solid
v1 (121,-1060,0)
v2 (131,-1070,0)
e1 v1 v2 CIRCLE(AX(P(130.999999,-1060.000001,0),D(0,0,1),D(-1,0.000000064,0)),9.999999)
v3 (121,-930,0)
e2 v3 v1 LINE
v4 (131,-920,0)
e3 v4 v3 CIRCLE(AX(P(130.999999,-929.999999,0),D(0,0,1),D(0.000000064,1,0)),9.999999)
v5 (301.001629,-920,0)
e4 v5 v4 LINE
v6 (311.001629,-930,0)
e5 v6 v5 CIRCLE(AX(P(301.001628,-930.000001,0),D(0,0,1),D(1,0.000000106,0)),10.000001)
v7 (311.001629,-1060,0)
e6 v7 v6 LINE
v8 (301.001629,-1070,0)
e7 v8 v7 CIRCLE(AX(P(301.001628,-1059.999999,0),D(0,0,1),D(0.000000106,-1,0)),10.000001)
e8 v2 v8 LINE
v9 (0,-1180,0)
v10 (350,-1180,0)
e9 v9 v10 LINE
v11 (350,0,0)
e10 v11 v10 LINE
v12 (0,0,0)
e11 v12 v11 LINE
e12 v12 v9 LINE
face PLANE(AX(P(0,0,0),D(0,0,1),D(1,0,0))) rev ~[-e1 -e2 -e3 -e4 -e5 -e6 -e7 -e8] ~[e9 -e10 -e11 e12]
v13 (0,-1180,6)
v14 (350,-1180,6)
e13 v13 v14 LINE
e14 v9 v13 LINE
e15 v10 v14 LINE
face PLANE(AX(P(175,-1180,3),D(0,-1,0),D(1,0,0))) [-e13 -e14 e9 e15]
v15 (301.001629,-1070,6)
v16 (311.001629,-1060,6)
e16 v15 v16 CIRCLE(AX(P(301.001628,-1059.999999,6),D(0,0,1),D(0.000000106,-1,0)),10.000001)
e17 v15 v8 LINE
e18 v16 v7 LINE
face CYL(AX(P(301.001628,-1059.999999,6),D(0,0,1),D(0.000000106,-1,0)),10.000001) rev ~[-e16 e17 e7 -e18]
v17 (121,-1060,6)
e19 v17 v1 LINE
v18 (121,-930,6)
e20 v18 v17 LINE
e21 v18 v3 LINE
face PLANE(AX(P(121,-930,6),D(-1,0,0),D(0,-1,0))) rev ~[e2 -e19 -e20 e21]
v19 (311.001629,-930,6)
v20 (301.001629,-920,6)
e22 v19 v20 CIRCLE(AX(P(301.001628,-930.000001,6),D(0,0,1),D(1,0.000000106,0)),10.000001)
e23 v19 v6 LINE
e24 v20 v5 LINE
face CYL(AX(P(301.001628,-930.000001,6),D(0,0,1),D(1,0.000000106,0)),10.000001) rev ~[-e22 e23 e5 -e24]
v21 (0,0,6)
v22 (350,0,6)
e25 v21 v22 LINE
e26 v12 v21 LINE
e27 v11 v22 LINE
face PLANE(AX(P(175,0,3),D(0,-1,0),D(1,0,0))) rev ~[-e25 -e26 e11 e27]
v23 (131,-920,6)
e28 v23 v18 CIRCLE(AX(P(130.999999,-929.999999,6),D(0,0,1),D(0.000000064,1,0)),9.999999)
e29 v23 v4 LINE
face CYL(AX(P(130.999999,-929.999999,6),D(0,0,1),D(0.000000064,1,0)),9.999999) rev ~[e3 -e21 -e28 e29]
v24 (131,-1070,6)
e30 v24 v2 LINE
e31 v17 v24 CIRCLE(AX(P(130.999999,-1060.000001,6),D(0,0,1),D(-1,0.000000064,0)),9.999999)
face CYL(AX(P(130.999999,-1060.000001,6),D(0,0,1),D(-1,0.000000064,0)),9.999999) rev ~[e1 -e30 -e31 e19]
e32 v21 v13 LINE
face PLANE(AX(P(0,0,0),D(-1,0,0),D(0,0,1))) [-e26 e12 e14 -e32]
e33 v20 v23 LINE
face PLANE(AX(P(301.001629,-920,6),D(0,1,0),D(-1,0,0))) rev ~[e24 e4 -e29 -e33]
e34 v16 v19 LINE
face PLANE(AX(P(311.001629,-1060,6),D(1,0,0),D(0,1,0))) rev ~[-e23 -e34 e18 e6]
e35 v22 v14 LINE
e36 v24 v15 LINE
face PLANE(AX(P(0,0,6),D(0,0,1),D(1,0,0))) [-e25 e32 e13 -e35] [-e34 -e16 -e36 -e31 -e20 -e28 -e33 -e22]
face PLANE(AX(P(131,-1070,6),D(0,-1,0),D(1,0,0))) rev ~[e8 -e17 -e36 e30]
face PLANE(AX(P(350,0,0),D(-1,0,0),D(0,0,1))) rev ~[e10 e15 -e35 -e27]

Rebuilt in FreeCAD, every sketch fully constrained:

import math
import FreeCAD as App
import Part
import Sketcher

V = App.Vector
Q = App.Units.Quantity

doc = App.newDocument("Part")
params = doc.addObject("Spreadsheet::Sheet", "Params")
for row, (alias, value) in enumerate([
    ("sketch1_width", "350 mm"),
    ("sketch1_height", "6 mm"),
    ("pad1_length", "1180 mm"),
    ("sketch2_radius", "10.000001 mm"),
    ("sketch2_height", "130 mm"),
    ("pocket1_length", "6 mm"),
], start=1):
    params.set(f"A{row}", alias)
    params.set(f"B{row}", "=" + value)
    params.setAlias(f"B{row}", alias)

body = doc.addObject("PartDesign::Body", "Body")

sketch1 = body.newObject("Sketcher::SketchObject", "Sketch")
sketch1.AttachmentSupport = (doc.getObject("XZ_Plane"), [""])
sketch1.MapMode = "FlatFace"
sketch1.addGeometry([
    Part.LineSegment(V(0, 6, 0), V(0, 0, 0)),
    Part.LineSegment(V(0, 0, 0), V(350, 0, 0)),
    Part.LineSegment(V(350, 0, 0), V(350, 6, 0)),
    Part.LineSegment(V(350, 6, 0), V(0, 6, 0)),
], False)
sketch1.addConstraint([
    Sketcher.Constraint("Coincident", 0, 2, 1, 1),
    Sketcher.Constraint("Coincident", 1, 2, 2, 1),
    Sketcher.Constraint("Coincident", 2, 2, 3, 1),
    Sketcher.Constraint("Coincident", 3, 2, 0, 1),
    Sketcher.Constraint("Vertical", 0),
    Sketcher.Constraint("Horizontal", 1),
    Sketcher.Constraint("Vertical", 2),
    Sketcher.Constraint("Horizontal", 3),
    Sketcher.Constraint("Coincident", 0, 2, -1, 1),
    Sketcher.Constraint("DistanceX", 1, 1, 1, 2, Q("350 mm")),
    Sketcher.Constraint("DistanceY", 0, 2, 0, 1, Q("6 mm")),
])
sketch1.setExpression("Constraints[9]", "Params.sketch1_width")
sketch1.setExpression("Constraints[10]", "Params.sketch1_height")
pad1 = body.newObject("PartDesign::Pad", "Pad")
pad1.Profile = sketch1
pad1.setExpression("Length", "Params.pad1_length")

sketch2 = body.newObject("Sketcher::SketchObject", "Sketch001")
sketch2.AttachmentSupport = (doc.getObject("XY_Plane"), [""])
sketch2.MapMode = "FlatFace"
sketch2.AttachmentOffset = App.Placement(V(0, 0, 6), App.Rotation())
sketch2.addGeometry([
    Part.LineSegment(V(311, -1060, 0), V(311, -930, 0)),
    Part.ArcOfCircle(Part.Circle(V(301, -930, 0), V(0, 0, 1), 10), math.radians(0), math.radians(90)),
    Part.LineSegment(V(301, -920, 0), V(131, -920, 0)),
    Part.ArcOfCircle(Part.Circle(V(131, -930, 0), V(0, 0, 1), 10), math.radians(90), math.radians(180)),
    Part.LineSegment(V(121, -930, 0), V(121, -1060, 0)),
    Part.ArcOfCircle(Part.Circle(V(131, -1060, 0), V(0, 0, 1), 10), math.radians(180), math.radians(270)),
    Part.LineSegment(V(131, -1070, 0), V(301, -1070, 0)),
    Part.ArcOfCircle(Part.Circle(V(301, -1060, 0), V(0, 0, 1), 10), math.radians(-90), math.radians(0)),
], False)
sketch2.addConstraint([
    Sketcher.Constraint("Tangent", 0, 2, 1, 1),
    Sketcher.Constraint("Tangent", 1, 2, 2, 1),
    Sketcher.Constraint("Tangent", 2, 2, 3, 1),
    Sketcher.Constraint("Tangent", 3, 2, 4, 1),
    Sketcher.Constraint("Tangent", 4, 2, 5, 1),
    Sketcher.Constraint("Tangent", 5, 2, 6, 1),
    Sketcher.Constraint("Tangent", 6, 2, 7, 1),
    Sketcher.Constraint("Tangent", 7, 2, 0, 1),
    Sketcher.Constraint("Vertical", 0),
    Sketcher.Constraint("Horizontal", 2),
    Sketcher.Constraint("Vertical", 4),
    Sketcher.Constraint("Horizontal", 6),
    Sketcher.Constraint("Equal", 1, 3),
    Sketcher.Constraint("Equal", 3, 5),
    Sketcher.Constraint("Equal", 5, 7),
    Sketcher.Constraint("Radius", 1, Q("10.000001 mm")),
    Sketcher.Constraint("DistanceY", 0, 1, 0, 2, Q("130 mm")),
    Sketcher.Constraint("DistanceY", 1, 3, -1, 1, Q("930.000001 mm")),
    Sketcher.Constraint("DistanceX", -1, 1, 3, 3, Q("130.999999 mm")),
    Sketcher.Constraint("DistanceX", 2, 2, 2, 1, Q("170.001629 mm")),
])
sketch2.setExpression("Constraints[15]", "Params.sketch2_radius")
sketch2.setExpression("Constraints[16]", "Params.sketch2_height")
pocket1 = body.newObject("PartDesign::Pocket", "Pocket")
pocket1.Profile = sketch2
pocket1.setExpression("Length", "Params.pocket1_length")

doc.recompute()
